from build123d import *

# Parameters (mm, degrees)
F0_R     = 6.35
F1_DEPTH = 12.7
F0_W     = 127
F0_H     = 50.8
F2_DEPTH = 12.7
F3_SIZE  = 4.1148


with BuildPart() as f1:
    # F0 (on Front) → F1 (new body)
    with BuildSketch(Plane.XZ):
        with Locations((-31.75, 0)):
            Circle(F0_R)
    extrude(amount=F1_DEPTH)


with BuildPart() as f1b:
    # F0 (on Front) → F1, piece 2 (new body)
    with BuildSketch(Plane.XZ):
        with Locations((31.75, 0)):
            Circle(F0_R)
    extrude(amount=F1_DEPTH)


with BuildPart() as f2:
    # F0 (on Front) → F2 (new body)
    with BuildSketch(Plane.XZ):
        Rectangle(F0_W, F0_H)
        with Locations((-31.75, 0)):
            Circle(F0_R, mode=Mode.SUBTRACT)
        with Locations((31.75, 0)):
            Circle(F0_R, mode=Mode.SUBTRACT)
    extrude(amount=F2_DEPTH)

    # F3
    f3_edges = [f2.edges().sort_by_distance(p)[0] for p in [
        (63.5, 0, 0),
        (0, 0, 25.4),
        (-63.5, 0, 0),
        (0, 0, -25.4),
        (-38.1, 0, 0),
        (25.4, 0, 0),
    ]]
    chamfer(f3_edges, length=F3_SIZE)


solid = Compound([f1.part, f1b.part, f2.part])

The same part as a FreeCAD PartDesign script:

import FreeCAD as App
import Part
import Sketcher

V = App.Vector
Q = App.Units.Quantity


def edges_at(feature, points):
    """Names of the edges that pass closest to the given points."""
    edges = feature.Shape.Edges
    near = lambda p: min(range(len(edges)), key=lambda i: edges[i].distToShape(Part.Vertex(*p))[0])
    return sorted({f"Edge{near(p) + 1}" for p in points})

doc = App.newDocument("Part")
body = doc.addObject("PartDesign::Body", "Body")

# Sketch on XZ plane
sketch1 = body.newObject("Sketcher::SketchObject", "Sketch")
sketch1.AttachmentSupport = (doc.getObject("XZ_Plane"), [""])
sketch1.MapMode = "FlatFace"
sketch1.addGeometry(Part.Circle(V(-32, 0, 0), V(0, 0, 1), 6), False)
sketch1.addConstraint(Sketcher.Constraint("PointOnObject", 0, 3, -1))
sketch1.addConstraint(Sketcher.Constraint("Diameter", 0, Q("0.5 in")))
sketch1.addConstraint(Sketcher.Constraint("DistanceX", 0, 3, -1, 1, Q("1.25 in")))
pad1 = body.newObject("PartDesign::Pad", "Pad")
pad1.Profile = sketch1
pad1.Length = Q("0.5 in")
body2 = doc.addObject("PartDesign::Body", "Body001")

# Sketch on XZ plane
sketch2 = body2.newObject("Sketcher::SketchObject", "Sketch001")
sketch2.AttachmentSupport = (doc.getObject("XZ_Plane001"), [""])
sketch2.MapMode = "FlatFace"
sketch2.addGeometry(Part.Circle(V(32, 0, 0), V(0, 0, 1), 6), False)
sketch2.addConstraint(Sketcher.Constraint("PointOnObject", 0, 3, -1))
sketch2.addConstraint(Sketcher.Constraint("Diameter", 0, Q("0.5 in")))
sketch2.addConstraint(Sketcher.Constraint("DistanceX", -1, 1, 0, 3, Q("1.25 in")))
pad2 = body2.newObject("PartDesign::Pad", "Pad001")
pad2.Profile = sketch2
pad2.Length = Q("0.5 in")
body3 = doc.addObject("PartDesign::Body", "Body002")

# Sketch on XZ plane
sketch3 = body3.newObject("Sketcher::SketchObject", "Sketch002")
sketch3.AttachmentSupport = (doc.getObject("XZ_Plane002"), [""])
sketch3.MapMode = "FlatFace"
sketch3.addGeometry(Part.LineSegment(V(-64, 25, 0), V(-64, -25, 0)), False)
sketch3.addGeometry(Part.LineSegment(V(-64, -25, 0), V(64, -25, 0)), False)
sketch3.addGeometry(Part.LineSegment(V(64, -25, 0), V(64, 25, 0)), False)
sketch3.addGeometry(Part.LineSegment(V(64, 25, 0), V(-64, 25, 0)), False)
sketch3.addGeometry(Part.Circle(V(-32, 0, 0), V(0, 0, 1), 6), False)
sketch3.addGeometry(Part.Circle(V(32, 0, 0), V(0, 0, 1), 6), False)
sketch3.addConstraint(Sketcher.Constraint("Coincident", 0, 2, 1, 1))
sketch3.addConstraint(Sketcher.Constraint("Coincident", 1, 2, 2, 1))
sketch3.addConstraint(Sketcher.Constraint("Coincident", 2, 2, 3, 1))
sketch3.addConstraint(Sketcher.Constraint("Coincident", 3, 2, 0, 1))
sketch3.addConstraint(Sketcher.Constraint("Vertical", 0))
sketch3.addConstraint(Sketcher.Constraint("Horizontal", 1))
sketch3.addConstraint(Sketcher.Constraint("Vertical", 2))
sketch3.addConstraint(Sketcher.Constraint("Horizontal", 3))
sketch3.addConstraint(Sketcher.Constraint("Equal", 4, 5))
sketch3.addConstraint(Sketcher.Constraint("Symmetric", 4, 3, 5, 3, -1, 1))
sketch3.addConstraint(Sketcher.Constraint("Symmetric", 0, 2, 2, 2, -1, 1))
sketch3.addConstraint(Sketcher.Constraint("PointOnObject", 4, 3, -1))
sketch3.addConstraint(Sketcher.Constraint("Diameter", 4, Q("0.5 in")))
sketch3.addConstraint(Sketcher.Constraint("DistanceX", 1, 1, 1, 2, Q("5 in")))
sketch3.addConstraint(Sketcher.Constraint("DistanceY", 0, 2, 0, 1, Q("2 in")))
sketch3.addConstraint(Sketcher.Constraint("DistanceX", 4, 3, 5, 3, Q("2.5 in")))
pad3 = body3.newObject("PartDesign::Pad", "Pad002")
pad3.Profile = sketch3
pad3.Length = Q("0.5 in")
doc.recompute()

chamfer = body3.newObject("PartDesign::Chamfer", "Chamfer")
chamfer.Base = (pad3, edges_at(pad3, [
    (63.5, 0, 0),
    (0, 0, 25.4),
    (-63.5, 0, 0),
    (0, 0, -25.4),
    (-38.1, 0, 0),
    (25.4, 0, 0),
]))
chamfer.Size = Q("0.162 in")

doc.recompute()
